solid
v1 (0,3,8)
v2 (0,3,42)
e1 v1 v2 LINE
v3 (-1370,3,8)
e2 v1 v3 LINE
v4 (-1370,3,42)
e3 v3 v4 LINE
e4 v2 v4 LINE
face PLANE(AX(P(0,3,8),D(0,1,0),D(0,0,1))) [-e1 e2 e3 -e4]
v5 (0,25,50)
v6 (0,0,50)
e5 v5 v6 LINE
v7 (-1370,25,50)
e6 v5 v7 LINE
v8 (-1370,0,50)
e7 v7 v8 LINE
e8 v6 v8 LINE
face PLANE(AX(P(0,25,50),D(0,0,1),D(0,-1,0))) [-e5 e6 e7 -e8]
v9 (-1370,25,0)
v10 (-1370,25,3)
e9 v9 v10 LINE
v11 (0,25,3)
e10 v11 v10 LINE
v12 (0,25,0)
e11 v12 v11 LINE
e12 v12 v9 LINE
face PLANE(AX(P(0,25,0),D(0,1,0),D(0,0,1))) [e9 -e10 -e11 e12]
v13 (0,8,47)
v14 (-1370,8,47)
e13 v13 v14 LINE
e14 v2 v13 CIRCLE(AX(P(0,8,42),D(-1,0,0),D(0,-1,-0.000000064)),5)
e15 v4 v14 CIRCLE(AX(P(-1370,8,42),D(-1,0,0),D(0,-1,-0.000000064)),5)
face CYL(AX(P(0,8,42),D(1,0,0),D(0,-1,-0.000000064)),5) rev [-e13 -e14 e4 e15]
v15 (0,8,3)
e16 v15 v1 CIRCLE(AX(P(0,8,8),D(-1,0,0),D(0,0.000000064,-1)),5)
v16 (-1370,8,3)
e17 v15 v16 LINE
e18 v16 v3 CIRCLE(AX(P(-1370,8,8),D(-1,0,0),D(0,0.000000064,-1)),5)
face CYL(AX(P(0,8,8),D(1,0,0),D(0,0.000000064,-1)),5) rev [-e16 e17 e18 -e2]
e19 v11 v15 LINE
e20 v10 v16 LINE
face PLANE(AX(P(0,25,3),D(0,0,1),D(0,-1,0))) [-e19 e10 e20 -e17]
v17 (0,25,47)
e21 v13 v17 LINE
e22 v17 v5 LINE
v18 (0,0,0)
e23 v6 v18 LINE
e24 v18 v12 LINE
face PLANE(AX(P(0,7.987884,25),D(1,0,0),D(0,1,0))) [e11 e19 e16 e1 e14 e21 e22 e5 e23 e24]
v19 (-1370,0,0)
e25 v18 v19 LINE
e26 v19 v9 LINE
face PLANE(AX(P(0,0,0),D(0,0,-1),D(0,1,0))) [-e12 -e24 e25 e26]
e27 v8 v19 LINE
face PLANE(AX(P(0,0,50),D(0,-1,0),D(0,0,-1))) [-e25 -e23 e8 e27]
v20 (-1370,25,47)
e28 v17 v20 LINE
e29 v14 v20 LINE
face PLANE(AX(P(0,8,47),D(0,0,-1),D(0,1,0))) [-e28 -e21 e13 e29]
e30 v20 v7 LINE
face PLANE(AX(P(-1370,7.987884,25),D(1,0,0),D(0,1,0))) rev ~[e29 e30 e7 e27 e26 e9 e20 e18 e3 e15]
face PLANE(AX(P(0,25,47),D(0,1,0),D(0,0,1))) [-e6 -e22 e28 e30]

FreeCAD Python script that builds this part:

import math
import FreeCAD as App
import Part
import Sketcher
from FreeCAD import Vector

doc = App.newDocument("Part")
params = doc.addObject("Spreadsheet::Sheet", "Params")
for row, (alias, value) in enumerate([
    ("sketch1_radius", "5 mm"),
    ("sketch1_width", "25 mm"),
    ("sketch1_width2", "17 mm"),
    ("sketch1_height", "50 mm"),
    ("sketch1_height2", "3 mm"),
    ("pad1_length", "1370 mm"),
], start=1):
    params.set(f"A{row}", alias)
    params.set(f"B{row}", "=" + value)
    params.setAlias(f"B{row}", alias)

body = doc.addObject("PartDesign::Body", "Body")

sketch1 = doc.addObject("Sketcher::SketchObject", "Sketch")
body.addObject(sketch1)
sketch1.AttachmentSupport = (doc.YZ_Plane, [""])
sketch1.MapMode = "FlatFace"
sketch1.addGeometry([
    Part.LineSegment(Vector(0, 50, 0), Vector(0, 0, 0)),
    Part.LineSegment(Vector(0, 0, 0), Vector(25, 0, 0)),
    Part.LineSegment(Vector(25, 0, 0), Vector(25, 3, 0)),
    Part.LineSegment(Vector(25, 3, 0), Vector(8, 3, 0)),
    Part.ArcOfCircle(Part.Circle(Vector(8, 8, 0), Vector(0, 0, 1), 5), math.radians(179.999996), math.radians(270.000004)),
    Part.LineSegment(Vector(3, 8, 0), Vector(3, 42, 0)),
    Part.ArcOfCircle(Part.Circle(Vector(8, 42, 0), Vector(0, 0, 1), 5), math.radians(89.999996), math.radians(180.000004)),
    Part.LineSegment(Vector(8, 47, 0), Vector(25, 47, 0)),
    Part.LineSegment(Vector(25, 47, 0), Vector(25, 50, 0)),
    Part.LineSegment(Vector(25, 50, 0), Vector(0, 50, 0)),
], False)
sketch1.addConstraint([
    Sketcher.Constraint("Coincident", 0, 2, 1, 1),
    Sketcher.Constraint("Coincident", 1, 2, 2, 1),
    Sketcher.Constraint("Coincident", 2, 2, 3, 1),
    Sketcher.Constraint("Tangent", 3, 2, 4, 2),
    Sketcher.Constraint("Tangent", 4, 1, 5, 1),
    Sketcher.Constraint("Tangent", 5, 2, 6, 2),
    Sketcher.Constraint("Tangent", 6, 1, 7, 1),
    Sketcher.Constraint("Coincident", 7, 2, 8, 1),
    Sketcher.Constraint("Coincident", 8, 2, 9, 1),
    Sketcher.Constraint("Coincident", 9, 2, 0, 1),
    Sketcher.Constraint("Vertical", 0),
    Sketcher.Constraint("Horizontal", 1),
    Sketcher.Constraint("Vertical", 2),
    Sketcher.Constraint("Horizontal", 3),
    Sketcher.Constraint("Vertical", 5),
    Sketcher.Constraint("Horizontal", 7),
    Sketcher.Constraint("Vertical", 8),
    Sketcher.Constraint("Horizontal", 9),
    Sketcher.Constraint("Coincident", 0, 2, -1, 1),
    Sketcher.Constraint("Equal", 4, 6),
    Sketcher.Constraint("Vertical", 2, 2, 7, 2),
    Sketcher.Constraint("Equal", 2, 8),
    Sketcher.Constraint("Radius", 4, 5.0),
    Sketcher.Constraint("DistanceX", 1, 1, 1, 2, 25.0),
    Sketcher.Constraint("DistanceX", 3, 2, 3, 1, 17.0),
    Sketcher.Constraint("DistanceY", 0, 2, 0, 1, 50.0),
    Sketcher.Constraint("DistanceY", 2, 1, 2, 2, 3.0),
])
sketch1.setExpression("Constraints[22]", "Params.sketch1_radius")
sketch1.setExpression("Constraints[23]", "Params.sketch1_width")
sketch1.setExpression("Constraints[24]", "Params.sketch1_width2")
sketch1.setExpression("Constraints[25]", "Params.sketch1_height")
sketch1.setExpression("Constraints[26]", "Params.sketch1_height2")
pad1 = doc.addObject("PartDesign::Pad", "Pad")
body.addObject(pad1)
pad1.Profile = sketch1
pad1.setExpression("Length", "Params.pad1_length")
pad1.Reversed = True

doc.recompute()
